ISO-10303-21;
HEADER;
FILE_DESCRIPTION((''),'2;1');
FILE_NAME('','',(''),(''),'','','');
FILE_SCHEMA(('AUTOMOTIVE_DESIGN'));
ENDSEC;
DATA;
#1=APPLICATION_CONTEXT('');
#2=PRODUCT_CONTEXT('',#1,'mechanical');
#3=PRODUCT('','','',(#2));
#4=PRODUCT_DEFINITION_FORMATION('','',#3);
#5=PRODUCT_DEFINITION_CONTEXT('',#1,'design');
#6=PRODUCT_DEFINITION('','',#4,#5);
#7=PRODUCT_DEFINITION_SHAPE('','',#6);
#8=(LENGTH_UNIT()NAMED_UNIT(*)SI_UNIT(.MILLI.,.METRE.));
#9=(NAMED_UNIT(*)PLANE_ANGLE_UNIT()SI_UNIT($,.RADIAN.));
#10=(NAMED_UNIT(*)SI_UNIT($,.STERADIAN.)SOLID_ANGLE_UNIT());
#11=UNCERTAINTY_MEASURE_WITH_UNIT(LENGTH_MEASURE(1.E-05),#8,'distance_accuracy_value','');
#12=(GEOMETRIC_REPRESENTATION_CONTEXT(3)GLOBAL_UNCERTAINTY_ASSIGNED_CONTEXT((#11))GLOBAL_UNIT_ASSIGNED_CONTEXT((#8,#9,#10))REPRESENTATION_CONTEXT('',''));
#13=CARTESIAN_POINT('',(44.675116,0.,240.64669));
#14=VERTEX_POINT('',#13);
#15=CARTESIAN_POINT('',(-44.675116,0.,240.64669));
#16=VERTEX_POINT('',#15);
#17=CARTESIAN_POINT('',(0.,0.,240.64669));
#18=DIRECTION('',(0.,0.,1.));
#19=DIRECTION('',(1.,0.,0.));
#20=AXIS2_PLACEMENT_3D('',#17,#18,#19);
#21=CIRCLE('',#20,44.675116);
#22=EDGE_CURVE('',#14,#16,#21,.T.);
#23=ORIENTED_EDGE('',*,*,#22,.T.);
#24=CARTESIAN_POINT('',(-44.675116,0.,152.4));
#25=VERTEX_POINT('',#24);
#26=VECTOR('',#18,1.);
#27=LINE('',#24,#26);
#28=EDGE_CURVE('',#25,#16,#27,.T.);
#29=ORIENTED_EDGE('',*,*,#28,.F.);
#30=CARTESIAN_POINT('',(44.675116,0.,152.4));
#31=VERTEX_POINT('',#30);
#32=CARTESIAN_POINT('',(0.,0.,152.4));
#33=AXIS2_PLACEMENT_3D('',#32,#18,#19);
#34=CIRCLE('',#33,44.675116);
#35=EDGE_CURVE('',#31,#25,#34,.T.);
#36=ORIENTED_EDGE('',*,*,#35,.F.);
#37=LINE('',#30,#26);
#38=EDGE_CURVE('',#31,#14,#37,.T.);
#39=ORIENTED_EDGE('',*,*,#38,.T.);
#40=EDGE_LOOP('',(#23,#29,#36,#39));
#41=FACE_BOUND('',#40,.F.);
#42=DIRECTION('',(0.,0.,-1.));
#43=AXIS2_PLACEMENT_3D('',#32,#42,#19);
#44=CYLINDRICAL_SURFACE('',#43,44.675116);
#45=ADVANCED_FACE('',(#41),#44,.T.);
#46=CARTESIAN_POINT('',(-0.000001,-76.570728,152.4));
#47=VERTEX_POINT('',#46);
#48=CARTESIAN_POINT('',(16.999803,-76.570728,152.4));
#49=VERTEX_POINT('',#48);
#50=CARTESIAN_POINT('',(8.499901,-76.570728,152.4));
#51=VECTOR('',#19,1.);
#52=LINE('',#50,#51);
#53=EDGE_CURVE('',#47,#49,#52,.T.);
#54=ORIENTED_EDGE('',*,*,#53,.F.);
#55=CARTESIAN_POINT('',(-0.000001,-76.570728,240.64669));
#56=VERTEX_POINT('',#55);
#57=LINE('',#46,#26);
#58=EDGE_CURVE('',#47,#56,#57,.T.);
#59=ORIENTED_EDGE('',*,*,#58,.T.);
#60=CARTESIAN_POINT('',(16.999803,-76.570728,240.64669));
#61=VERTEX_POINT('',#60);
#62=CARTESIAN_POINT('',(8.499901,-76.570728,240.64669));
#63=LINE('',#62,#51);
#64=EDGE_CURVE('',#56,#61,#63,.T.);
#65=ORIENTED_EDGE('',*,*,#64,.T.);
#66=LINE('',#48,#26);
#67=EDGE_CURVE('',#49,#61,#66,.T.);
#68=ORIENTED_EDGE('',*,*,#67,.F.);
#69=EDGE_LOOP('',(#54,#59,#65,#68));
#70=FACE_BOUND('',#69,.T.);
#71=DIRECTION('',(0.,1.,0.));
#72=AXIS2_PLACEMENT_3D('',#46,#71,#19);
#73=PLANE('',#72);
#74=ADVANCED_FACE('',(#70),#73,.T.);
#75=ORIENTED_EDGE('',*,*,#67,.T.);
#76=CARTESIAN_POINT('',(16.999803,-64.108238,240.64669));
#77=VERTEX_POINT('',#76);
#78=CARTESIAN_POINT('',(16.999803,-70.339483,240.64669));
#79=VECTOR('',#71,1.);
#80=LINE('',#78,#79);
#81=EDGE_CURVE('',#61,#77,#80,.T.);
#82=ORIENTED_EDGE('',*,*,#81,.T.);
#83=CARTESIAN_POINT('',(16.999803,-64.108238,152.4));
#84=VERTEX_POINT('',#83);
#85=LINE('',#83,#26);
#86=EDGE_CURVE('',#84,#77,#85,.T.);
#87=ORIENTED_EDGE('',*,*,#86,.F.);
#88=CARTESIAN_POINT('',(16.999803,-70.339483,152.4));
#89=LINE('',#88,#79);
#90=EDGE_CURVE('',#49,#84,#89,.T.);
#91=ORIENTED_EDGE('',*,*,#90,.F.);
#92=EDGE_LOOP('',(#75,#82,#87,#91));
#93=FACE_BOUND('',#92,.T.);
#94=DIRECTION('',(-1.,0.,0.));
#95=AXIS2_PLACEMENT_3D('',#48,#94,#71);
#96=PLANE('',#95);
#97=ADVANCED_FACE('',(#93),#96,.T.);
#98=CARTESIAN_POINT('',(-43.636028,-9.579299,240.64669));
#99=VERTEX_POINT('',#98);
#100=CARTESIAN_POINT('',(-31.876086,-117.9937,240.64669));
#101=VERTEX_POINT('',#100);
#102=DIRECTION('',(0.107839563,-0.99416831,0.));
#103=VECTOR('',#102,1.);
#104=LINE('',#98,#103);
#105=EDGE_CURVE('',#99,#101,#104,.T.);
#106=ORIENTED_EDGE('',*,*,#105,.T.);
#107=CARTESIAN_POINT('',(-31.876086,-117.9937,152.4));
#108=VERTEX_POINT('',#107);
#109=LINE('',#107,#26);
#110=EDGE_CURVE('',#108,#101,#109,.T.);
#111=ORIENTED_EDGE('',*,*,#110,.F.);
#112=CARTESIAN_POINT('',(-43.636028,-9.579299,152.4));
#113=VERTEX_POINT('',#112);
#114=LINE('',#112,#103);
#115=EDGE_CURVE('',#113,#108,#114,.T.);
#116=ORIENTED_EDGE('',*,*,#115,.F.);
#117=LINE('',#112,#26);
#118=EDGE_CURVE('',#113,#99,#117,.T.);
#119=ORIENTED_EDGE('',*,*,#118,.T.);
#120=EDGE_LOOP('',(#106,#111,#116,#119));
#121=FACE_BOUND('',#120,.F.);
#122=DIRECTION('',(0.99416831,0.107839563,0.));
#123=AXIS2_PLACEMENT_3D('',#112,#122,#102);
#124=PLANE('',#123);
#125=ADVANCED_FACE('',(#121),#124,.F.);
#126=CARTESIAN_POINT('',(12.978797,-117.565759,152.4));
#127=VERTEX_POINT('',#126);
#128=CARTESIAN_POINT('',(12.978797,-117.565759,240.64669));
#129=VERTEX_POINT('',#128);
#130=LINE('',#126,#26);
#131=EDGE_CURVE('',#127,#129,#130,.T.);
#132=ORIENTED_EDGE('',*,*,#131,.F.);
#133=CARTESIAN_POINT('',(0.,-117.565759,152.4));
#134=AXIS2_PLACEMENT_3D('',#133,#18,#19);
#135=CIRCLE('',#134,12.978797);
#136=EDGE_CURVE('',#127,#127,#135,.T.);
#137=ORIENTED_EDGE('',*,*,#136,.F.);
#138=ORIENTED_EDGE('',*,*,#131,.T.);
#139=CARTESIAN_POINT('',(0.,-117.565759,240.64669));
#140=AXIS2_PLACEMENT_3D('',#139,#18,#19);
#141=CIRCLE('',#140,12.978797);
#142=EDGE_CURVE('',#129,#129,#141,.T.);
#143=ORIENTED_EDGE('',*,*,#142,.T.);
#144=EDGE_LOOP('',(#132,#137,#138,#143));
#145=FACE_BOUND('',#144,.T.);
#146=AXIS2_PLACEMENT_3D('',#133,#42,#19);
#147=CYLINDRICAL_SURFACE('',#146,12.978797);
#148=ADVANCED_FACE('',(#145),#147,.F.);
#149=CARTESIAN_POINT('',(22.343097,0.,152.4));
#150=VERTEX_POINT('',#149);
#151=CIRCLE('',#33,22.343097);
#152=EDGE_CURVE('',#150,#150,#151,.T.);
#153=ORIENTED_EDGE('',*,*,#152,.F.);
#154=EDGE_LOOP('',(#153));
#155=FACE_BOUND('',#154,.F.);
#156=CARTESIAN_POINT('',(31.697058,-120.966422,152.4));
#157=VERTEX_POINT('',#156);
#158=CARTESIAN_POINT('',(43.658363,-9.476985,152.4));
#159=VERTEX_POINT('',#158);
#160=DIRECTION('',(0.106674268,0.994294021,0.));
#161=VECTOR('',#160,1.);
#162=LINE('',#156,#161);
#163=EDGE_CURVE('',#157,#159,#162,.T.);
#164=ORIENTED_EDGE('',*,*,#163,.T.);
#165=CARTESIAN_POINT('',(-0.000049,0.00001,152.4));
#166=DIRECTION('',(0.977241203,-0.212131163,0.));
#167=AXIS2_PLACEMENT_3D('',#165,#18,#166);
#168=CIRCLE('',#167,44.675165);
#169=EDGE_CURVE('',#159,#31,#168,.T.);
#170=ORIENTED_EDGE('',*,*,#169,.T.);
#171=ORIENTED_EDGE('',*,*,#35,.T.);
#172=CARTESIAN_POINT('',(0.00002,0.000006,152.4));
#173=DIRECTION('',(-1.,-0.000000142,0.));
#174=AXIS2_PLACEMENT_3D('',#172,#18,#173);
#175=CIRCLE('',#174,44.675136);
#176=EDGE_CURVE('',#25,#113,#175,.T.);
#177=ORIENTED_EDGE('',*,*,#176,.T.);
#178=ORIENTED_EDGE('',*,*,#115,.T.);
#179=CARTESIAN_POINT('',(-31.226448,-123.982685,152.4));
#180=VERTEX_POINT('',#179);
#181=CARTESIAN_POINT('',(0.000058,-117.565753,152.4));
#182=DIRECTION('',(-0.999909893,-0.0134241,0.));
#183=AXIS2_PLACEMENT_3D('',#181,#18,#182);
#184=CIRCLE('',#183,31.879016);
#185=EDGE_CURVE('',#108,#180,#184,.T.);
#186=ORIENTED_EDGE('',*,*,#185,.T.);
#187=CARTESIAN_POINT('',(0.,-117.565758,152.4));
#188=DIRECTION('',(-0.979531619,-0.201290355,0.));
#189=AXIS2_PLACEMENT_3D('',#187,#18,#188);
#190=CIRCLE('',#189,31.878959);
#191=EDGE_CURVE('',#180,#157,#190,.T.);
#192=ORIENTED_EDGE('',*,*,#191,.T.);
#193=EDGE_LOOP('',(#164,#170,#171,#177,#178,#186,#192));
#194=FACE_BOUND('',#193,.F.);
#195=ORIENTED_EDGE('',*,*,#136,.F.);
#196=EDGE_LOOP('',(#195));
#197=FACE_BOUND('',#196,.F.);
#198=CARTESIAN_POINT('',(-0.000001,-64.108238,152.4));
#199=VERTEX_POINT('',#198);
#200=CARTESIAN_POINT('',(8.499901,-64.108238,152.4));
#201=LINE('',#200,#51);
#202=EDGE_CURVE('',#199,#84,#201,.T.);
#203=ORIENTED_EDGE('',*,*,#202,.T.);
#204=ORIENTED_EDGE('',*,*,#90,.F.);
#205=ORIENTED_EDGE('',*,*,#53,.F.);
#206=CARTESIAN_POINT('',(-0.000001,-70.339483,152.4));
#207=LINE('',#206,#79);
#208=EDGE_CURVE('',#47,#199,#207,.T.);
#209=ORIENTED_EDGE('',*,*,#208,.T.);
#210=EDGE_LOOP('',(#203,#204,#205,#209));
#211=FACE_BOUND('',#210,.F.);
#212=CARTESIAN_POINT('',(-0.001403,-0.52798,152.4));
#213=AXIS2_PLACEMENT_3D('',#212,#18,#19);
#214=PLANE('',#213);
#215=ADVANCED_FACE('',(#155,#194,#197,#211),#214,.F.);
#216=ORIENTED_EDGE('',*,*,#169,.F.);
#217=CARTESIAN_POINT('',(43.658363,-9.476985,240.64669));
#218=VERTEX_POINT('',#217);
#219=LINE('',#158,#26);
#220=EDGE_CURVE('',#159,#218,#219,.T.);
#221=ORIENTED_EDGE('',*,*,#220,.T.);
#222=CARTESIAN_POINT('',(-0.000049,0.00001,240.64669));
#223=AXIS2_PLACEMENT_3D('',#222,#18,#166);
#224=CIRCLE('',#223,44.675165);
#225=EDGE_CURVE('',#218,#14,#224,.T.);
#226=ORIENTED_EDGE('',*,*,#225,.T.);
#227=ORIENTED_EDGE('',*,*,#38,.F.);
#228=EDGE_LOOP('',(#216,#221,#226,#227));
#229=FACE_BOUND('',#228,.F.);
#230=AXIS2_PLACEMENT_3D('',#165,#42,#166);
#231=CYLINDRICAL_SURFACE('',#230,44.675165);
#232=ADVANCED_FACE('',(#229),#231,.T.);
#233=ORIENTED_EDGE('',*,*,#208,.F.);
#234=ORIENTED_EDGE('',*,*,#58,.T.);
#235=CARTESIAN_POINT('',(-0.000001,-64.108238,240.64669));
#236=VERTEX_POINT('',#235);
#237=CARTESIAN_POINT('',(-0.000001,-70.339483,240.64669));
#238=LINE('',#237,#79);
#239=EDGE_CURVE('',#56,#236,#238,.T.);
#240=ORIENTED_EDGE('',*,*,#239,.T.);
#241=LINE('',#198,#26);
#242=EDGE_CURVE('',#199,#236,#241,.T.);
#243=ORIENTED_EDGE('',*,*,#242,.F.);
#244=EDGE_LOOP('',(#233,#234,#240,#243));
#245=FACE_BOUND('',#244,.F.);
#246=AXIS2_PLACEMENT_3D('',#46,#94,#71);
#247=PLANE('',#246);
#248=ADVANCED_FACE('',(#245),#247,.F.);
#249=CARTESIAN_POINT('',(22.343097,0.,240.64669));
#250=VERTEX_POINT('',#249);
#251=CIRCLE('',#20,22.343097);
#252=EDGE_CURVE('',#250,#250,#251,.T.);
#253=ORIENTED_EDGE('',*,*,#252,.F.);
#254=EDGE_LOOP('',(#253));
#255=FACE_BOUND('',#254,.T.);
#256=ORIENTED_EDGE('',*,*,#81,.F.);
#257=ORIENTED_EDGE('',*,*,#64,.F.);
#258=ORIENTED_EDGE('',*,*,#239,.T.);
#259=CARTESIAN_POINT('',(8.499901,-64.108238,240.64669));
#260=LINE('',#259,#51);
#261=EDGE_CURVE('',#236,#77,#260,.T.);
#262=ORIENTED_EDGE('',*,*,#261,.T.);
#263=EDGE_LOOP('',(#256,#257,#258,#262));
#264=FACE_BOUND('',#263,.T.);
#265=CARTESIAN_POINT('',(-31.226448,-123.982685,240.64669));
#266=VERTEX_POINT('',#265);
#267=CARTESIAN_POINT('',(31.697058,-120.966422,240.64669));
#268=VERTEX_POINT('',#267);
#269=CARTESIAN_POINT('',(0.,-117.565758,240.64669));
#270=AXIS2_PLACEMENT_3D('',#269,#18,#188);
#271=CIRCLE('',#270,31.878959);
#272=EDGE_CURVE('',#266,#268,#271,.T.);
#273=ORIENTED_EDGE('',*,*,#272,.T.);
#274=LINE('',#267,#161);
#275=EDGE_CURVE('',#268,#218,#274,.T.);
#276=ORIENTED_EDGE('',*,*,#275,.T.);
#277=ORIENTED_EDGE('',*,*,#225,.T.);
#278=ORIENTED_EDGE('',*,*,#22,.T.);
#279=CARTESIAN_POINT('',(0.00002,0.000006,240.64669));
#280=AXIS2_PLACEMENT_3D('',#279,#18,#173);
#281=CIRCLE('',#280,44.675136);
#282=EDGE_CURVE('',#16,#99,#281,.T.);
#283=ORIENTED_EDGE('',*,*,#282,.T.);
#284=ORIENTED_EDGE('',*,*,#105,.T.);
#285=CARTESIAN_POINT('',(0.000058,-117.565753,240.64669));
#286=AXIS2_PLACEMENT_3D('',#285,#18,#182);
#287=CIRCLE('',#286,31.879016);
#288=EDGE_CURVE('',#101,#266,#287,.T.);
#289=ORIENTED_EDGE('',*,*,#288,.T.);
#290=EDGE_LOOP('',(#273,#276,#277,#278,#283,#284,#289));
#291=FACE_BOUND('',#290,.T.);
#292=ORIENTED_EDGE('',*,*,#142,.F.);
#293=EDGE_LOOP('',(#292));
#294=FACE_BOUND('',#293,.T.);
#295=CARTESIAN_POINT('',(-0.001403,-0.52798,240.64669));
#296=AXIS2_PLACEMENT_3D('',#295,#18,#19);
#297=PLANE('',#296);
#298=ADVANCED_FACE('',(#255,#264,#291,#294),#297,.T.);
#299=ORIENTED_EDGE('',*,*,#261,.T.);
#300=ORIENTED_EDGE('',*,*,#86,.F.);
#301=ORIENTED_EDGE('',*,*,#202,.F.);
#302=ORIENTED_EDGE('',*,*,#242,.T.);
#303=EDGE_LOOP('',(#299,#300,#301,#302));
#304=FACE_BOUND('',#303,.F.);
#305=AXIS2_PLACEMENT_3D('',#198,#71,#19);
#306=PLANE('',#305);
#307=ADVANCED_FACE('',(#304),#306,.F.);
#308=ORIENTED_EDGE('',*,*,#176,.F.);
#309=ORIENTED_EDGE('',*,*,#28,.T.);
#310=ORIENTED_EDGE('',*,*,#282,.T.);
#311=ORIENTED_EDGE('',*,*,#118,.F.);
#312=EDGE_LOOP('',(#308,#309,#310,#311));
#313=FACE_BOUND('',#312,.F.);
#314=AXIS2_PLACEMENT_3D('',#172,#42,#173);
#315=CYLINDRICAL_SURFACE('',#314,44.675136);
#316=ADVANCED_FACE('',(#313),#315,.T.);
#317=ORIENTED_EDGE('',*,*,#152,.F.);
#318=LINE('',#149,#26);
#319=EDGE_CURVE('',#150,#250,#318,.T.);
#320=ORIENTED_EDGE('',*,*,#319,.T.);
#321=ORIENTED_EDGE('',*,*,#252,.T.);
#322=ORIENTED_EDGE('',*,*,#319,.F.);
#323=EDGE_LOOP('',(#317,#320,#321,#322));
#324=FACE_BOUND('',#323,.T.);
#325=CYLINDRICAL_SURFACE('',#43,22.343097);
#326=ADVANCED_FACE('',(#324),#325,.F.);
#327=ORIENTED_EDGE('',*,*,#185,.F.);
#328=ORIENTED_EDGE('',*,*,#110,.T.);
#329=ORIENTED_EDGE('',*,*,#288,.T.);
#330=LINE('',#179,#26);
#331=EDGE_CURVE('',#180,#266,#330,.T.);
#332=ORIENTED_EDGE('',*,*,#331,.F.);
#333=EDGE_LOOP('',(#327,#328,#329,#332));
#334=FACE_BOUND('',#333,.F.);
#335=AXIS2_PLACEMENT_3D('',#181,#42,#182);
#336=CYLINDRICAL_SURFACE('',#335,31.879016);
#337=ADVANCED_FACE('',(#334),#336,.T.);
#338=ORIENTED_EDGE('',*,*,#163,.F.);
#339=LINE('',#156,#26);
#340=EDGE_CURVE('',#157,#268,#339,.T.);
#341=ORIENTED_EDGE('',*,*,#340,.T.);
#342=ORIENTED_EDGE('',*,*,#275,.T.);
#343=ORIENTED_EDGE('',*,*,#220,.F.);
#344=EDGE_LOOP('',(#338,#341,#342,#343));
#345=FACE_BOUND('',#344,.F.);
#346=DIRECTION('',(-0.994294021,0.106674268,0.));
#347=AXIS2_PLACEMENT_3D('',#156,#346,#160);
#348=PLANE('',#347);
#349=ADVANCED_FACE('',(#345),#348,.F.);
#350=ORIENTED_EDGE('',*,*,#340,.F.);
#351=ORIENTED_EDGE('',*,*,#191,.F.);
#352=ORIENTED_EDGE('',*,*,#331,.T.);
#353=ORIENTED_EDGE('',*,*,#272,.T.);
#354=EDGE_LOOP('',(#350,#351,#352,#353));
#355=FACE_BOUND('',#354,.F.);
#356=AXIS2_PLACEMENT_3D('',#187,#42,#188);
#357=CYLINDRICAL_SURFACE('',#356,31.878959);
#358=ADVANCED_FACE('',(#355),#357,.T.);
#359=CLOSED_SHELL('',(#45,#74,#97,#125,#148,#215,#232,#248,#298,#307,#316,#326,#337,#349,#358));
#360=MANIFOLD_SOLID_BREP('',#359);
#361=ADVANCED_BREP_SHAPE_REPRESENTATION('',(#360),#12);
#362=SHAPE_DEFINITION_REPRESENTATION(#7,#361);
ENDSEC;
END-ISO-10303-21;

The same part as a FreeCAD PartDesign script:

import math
import FreeCAD as App
import Part
import Sketcher
from FreeCAD import Vector

doc = App.newDocument("Part")
body = doc.addObject("PartDesign::Body", "Body")

# Sketch on XY plane
sketch1 = doc.addObject("Sketcher::SketchObject", "Sketch")
body.addObject(sketch1)
sketch1.AttachmentSupport = (doc.XY_Plane, [""])
sketch1.MapMode = "FlatFace"
sketch1.AttachmentOffset = App.Placement(Vector(0, 0, 152.4), App.Rotation())
sketch1.addGeometry(Part.ArcOfCircle(Part.Circle(Vector(-0.000049, 0.00001, 0), Vector(0, 0, 1), 44.675165), math.radians(-12.247273), math.radians(-0.000013)), False)
sketch1.addGeometry(Part.ArcOfCircle(Part.Circle(Vector(0, 0, 0), Vector(0, 0, 1), 44.675116), math.radians(0), math.radians(180)), False)
sketch1.addGeometry(Part.ArcOfCircle(Part.Circle(Vector(0.00002, 0.000006, 0), Vector(0, 0, 1), 44.675136), math.radians(-179.999992), math.radians(-167.618415)), False)
sketch1.addGeometry(Part.LineSegment(Vector(-43.636028, -9.579299, 0), Vector(-31.876086, -117.9937, 0)), False)
sketch1.addGeometry(Part.ArcOfCircle(Part.Circle(Vector(0.000058, -117.565753, 0), Vector(0, 0, 1), 31.879016), math.radians(-179.230833), math.radians(-168.387586)), False)
sketch1.addGeometry(Part.ArcOfCircle(Part.Circle(Vector(0, -117.565758, 0), Vector(0, 0, 1), 31.878959), math.radians(-168.387574), math.radians(-6.123636)), False)
sketch1.addGeometry(Part.LineSegment(Vector(31.697058, -120.966422, 0), Vector(43.658363, -9.476985, 0)), False)
sketch1.addGeometry(Part.Circle(Vector(0, -117.565759, 0), Vector(0, 0, 1), 12.978797), False)
sketch1.addGeometry(Part.LineSegment(Vector(16.999803, -76.570728, 0), Vector(0, -76.570728, 0)), False)
sketch1.addGeometry(Part.LineSegment(Vector(0, -76.570728, 0), Vector(0, -64.108238, 0)), False)
sketch1.addGeometry(Part.LineSegment(Vector(0, -64.108238, 0), Vector(16.999803, -64.108238, 0)), False)
sketch1.addGeometry(Part.LineSegment(Vector(16.999803, -64.108238, 0), Vector(16.999803, -76.570728, 0)), False)
sketch1.addGeometry(Part.Circle(Vector(0, 0, 0), Vector(0, 0, 1), 22.343097), False)
sketch1.addConstraint(Sketcher.Constraint("Tangent", 0, 2, 1, 1))
sketch1.addConstraint(Sketcher.Constraint("Tangent", 1, 2, 2, 1))
sketch1.addConstraint(Sketcher.Constraint("Coincident", 2, 2, 3, 1))
sketch1.addConstraint(Sketcher.Constraint("Coincident", 3, 2, 4, 1))
sketch1.addConstraint(Sketcher.Constraint("Tangent", 4, 2, 5, 1))
sketch1.addConstraint(Sketcher.Constraint("Tangent", 5, 2, 6, 1))
sketch1.addConstraint(Sketcher.Constraint("Coincident", 6, 2, 0, 1))
sketch1.addConstraint(Sketcher.Constraint("Coincident", 8, 2, 9, 1))
sketch1.addConstraint(Sketcher.Constraint("Coincident", 9, 2, 10, 1))
sketch1.addConstraint(Sketcher.Constraint("Coincident", 10, 2, 11, 1))
sketch1.addConstraint(Sketcher.Constraint("Coincident", 11, 2, 8, 1))
sketch1.addConstraint(Sketcher.Constraint("Horizontal", 8))
sketch1.addConstraint(Sketcher.Constraint("Vertical", 9))
sketch1.addConstraint(Sketcher.Constraint("Horizontal", 10))
sketch1.addConstraint(Sketcher.Constraint("Vertical", 11))
sketch1.addConstraint(Sketcher.Constraint("Coincident", 1, 3, -1, 1))
sketch1.addConstraint(Sketcher.Constraint("Coincident", 12, 3, -1, 1))
sketch1.addConstraint(Sketcher.Constraint("Coincident", 7, 3, 5, 3))
sketch1.addConstraint(Sketcher.Constraint("PointOnObject", 5, 3, -2))
sketch1.addConstraint(Sketcher.Constraint("PointOnObject", 0, 2, -1))
sketch1.addConstraint(Sketcher.Constraint("PointOnObject", 1, 2, -1))
sketch1.addConstraint(Sketcher.Constraint("PointOnObject", 8, 2, -2))
sketch1.addConstraint(Sketcher.Constraint("Radius", 5, 31.878959))
sketch1.addConstraint(Sketcher.Constraint("Diameter", 7, 25.957594))
sketch1.addConstraint(Sketcher.Constraint("Diameter", 12, 44.686194))
sketch1.addConstraint(Sketcher.Constraint("Radius", 0, 44.675165))
sketch1.addConstraint(Sketcher.Constraint("Radius", 1, 44.675116))
sketch1.addConstraint(Sketcher.Constraint("Radius", 2, 44.675136))
sketch1.addConstraint(Sketcher.Constraint("Radius", 4, 31.879016))
sketch1.addConstraint(Sketcher.Constraint("DistanceY", 9, 1, 9, 2, 12.462489))
sketch1.addConstraint(Sketcher.Constraint("DistanceY", 2, 2, -1, 1, 9.579299))
sketch1.addConstraint(Sketcher.Constraint("DistanceY", 3, 2, -1, 1, 117.9937))
sketch1.addConstraint(Sketcher.Constraint("DistanceX", 8, 2, 8, 1, 16.999803))
sketch1.addConstraint(Sketcher.Constraint("DistanceY", 5, 3, -1, 1, 117.565758))
sketch1.addConstraint(Sketcher.Constraint("DistanceX", 4, 2, -1, 1, 31.226448))
sketch1.addConstraint(Sketcher.Constraint("DistanceY", 9, 2, -1, 1, 64.108238))
sketch1.addConstraint(Sketcher.Constraint("DistanceY", 6, 2, 2, 3, 9.476991))
pad1 = doc.addObject("PartDesign::Pad", "Pad")
body.addObject(pad1)
pad1.Profile = sketch1
pad1.Length = 88.24669

doc.recompute()
